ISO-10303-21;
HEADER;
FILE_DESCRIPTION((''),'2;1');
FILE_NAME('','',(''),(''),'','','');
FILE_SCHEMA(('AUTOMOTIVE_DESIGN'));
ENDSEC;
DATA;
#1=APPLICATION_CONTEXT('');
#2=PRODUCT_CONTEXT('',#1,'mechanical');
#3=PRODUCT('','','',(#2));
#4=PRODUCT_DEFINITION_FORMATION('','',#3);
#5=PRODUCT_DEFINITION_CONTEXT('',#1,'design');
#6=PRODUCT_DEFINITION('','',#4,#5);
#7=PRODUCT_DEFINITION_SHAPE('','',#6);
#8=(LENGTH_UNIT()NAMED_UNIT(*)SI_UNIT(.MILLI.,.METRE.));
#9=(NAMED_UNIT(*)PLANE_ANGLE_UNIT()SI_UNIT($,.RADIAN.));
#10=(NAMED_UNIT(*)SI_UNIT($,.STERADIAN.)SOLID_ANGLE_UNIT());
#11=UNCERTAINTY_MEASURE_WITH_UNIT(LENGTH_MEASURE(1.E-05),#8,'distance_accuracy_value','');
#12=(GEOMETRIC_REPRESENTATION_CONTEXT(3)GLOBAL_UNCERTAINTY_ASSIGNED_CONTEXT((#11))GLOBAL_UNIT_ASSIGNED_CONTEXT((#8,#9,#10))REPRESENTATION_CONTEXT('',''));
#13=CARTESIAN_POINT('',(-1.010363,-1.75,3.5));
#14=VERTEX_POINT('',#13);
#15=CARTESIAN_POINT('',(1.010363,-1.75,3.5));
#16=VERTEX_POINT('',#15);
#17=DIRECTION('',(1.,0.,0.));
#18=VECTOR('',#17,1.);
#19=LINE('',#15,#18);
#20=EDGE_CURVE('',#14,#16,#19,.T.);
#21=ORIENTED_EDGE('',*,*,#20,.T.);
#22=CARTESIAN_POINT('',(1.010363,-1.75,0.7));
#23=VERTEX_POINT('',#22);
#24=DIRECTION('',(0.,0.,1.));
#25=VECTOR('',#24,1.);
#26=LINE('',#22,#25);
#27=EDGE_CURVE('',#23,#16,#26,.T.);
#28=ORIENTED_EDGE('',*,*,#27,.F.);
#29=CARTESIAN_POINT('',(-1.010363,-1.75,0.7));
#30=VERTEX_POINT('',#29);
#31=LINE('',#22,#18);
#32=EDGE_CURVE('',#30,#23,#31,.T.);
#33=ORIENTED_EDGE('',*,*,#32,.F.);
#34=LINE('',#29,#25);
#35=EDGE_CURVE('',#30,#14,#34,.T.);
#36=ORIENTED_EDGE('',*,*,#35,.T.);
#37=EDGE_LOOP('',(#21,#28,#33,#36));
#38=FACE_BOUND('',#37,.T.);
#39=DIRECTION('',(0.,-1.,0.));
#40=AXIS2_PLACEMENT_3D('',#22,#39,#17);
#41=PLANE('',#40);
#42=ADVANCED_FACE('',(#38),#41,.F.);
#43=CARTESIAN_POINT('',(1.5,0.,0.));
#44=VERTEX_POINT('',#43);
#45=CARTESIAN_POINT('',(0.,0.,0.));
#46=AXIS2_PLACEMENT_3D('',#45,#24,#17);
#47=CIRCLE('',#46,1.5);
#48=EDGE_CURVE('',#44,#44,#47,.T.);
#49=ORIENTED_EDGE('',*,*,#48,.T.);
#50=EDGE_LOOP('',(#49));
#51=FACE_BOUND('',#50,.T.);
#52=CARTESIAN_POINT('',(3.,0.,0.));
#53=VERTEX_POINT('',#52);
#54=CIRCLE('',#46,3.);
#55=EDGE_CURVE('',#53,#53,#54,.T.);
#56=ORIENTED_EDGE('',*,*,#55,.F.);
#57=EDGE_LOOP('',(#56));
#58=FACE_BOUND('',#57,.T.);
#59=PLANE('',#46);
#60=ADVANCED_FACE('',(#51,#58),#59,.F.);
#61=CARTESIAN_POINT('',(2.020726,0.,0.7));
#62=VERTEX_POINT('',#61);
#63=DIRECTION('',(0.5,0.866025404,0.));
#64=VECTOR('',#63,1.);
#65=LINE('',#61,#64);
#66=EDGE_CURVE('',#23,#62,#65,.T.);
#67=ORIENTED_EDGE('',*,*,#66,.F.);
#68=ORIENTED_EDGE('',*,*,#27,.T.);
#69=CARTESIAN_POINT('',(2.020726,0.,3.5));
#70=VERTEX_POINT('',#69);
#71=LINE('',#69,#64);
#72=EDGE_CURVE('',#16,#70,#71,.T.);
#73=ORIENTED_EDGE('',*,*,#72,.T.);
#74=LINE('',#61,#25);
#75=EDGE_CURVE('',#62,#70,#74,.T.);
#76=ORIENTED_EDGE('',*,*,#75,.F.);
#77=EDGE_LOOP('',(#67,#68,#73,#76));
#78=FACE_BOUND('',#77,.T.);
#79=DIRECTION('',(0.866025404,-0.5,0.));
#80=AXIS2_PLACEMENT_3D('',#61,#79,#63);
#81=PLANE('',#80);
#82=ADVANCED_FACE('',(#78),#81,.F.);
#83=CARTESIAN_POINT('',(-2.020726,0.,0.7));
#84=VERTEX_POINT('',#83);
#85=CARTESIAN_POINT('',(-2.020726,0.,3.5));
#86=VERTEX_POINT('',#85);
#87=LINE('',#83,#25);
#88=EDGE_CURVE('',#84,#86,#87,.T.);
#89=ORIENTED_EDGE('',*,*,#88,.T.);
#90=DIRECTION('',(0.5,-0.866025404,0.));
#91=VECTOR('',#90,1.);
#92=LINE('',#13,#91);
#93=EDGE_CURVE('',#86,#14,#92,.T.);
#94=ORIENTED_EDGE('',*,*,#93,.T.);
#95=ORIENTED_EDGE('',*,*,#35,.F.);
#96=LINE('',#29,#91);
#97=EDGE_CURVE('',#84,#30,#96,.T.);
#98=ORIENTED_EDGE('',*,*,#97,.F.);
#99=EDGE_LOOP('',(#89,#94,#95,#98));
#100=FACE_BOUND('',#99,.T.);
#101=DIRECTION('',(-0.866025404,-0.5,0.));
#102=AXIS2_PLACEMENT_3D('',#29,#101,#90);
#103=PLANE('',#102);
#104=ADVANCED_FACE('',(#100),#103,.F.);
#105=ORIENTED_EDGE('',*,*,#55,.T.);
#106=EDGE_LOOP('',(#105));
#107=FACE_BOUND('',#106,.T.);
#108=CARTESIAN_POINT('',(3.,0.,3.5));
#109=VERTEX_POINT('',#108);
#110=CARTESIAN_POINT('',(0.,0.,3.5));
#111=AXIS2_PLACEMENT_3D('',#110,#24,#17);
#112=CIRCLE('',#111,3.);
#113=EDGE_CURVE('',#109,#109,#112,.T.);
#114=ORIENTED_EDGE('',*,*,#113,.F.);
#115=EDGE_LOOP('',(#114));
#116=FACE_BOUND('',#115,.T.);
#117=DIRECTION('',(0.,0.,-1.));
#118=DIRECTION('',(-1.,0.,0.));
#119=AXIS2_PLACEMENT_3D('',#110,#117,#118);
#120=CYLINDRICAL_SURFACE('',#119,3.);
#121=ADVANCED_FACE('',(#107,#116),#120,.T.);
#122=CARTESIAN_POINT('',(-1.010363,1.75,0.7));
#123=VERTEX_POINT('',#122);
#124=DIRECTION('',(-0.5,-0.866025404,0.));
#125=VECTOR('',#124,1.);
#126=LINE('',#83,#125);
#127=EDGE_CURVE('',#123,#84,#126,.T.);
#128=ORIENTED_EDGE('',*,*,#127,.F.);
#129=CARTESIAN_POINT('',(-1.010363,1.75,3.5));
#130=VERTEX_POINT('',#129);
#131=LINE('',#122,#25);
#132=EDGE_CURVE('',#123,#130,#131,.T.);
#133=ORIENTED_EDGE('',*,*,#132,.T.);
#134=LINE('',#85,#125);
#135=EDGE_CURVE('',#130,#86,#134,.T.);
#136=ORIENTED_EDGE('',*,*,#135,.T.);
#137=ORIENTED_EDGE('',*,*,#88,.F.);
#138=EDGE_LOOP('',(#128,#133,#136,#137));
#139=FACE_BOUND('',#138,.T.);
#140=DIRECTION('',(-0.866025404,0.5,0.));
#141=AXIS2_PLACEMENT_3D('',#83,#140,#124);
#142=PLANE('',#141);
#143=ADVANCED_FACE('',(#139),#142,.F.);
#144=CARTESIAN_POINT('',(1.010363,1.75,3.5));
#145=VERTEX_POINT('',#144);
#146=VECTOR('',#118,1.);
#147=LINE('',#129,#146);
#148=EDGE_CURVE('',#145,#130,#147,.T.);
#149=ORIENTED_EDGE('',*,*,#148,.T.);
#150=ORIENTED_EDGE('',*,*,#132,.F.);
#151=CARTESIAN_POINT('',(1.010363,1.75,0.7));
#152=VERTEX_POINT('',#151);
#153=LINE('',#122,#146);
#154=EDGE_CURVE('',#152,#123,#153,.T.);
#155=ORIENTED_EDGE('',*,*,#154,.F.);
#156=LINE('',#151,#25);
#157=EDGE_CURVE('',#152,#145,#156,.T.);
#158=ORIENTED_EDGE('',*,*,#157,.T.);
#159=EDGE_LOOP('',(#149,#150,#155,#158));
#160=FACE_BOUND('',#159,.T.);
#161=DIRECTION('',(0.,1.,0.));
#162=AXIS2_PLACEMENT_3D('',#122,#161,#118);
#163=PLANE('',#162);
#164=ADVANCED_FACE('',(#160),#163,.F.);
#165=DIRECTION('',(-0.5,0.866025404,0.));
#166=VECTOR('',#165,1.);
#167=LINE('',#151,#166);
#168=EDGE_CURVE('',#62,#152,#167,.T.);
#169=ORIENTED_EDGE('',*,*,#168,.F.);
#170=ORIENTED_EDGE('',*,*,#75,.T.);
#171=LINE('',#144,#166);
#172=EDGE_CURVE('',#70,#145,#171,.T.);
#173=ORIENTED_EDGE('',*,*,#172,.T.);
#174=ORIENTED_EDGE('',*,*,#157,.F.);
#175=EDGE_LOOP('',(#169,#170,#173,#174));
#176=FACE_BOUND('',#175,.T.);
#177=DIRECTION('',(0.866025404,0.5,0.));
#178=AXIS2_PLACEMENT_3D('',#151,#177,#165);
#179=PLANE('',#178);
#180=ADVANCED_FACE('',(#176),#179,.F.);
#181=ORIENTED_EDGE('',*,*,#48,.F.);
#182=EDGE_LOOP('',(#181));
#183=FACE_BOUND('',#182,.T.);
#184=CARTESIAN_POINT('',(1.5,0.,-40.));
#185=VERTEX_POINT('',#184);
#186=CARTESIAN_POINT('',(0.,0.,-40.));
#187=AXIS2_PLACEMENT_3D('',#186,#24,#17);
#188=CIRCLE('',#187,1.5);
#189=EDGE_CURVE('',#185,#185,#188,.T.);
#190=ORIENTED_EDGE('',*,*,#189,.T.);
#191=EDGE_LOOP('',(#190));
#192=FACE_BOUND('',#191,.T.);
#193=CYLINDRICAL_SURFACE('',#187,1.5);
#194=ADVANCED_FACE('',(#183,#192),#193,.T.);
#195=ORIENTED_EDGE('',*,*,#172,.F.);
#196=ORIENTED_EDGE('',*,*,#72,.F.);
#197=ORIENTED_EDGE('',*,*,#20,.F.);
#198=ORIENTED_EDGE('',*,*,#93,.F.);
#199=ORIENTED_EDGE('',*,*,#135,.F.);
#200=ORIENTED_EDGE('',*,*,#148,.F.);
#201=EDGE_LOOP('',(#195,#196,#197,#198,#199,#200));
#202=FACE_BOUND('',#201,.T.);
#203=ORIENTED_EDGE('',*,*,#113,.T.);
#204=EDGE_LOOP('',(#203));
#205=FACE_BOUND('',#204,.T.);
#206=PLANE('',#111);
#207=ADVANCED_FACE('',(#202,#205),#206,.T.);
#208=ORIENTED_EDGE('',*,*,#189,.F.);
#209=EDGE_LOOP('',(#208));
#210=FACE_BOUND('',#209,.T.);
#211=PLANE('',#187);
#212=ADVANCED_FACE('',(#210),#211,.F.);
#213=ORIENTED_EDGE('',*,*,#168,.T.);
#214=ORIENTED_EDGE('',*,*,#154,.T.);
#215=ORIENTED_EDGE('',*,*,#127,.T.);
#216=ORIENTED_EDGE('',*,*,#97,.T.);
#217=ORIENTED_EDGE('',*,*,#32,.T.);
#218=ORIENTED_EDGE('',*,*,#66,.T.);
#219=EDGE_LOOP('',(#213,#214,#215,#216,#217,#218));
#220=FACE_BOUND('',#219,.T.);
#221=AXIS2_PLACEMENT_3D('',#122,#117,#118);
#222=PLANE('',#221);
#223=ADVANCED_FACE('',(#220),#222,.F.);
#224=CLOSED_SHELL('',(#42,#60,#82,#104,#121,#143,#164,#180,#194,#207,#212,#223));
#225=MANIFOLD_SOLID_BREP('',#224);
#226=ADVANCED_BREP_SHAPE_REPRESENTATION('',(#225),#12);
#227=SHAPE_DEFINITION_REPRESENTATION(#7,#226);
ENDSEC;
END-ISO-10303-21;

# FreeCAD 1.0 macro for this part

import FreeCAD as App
import Part
import Sketcher
Q = App.Units.Quantity

doc = App.newDocument("Part")
body = doc.addObject("PartDesign::Body", "Body")

# Sketch on XY plane
sketch1 = body.newObject("Sketcher::SketchObject", "Sketch")
sketch1.AttachmentSupport = (doc.getObject("XY_Plane"), [""])
sketch1.MapMode = "FlatFace"
sketch1.addGeometry(Part.Circle(App.Vector(0, 0, 0), App.Vector(0, 0, 1), 3), False)
sketch1.addConstraint([
    Sketcher.Constraint("Coincident", 0, 3, -1, 1),
    Sketcher.Constraint("Diameter", 0, 6.0),
])
pad1 = body.newObject("PartDesign::Pad", "Pad")
pad1.Profile = sketch1
pad1.Length = 3.5

# Sketch on XY plane
sketch2 = body.newObject("Sketcher::SketchObject", "Sketch001")
sketch2.AttachmentSupport = (doc.getObject("XY_Plane"), [""])
sketch2.MapMode = "FlatFace"
sketch2.AttachmentOffset = App.Placement(App.Vector(0, 0, 3.5), App.Rotation())
sketch2.addGeometry([
    Part.LineSegment(App.Vector(1, 1.8, 0), App.Vector(-1, 1.8, 0)),  # 0
    Part.LineSegment(App.Vector(-1, 1.8, 0), App.Vector(-2, 0, 0)),  # 1
    Part.LineSegment(App.Vector(-2, 0, 0), App.Vector(-1, -1.8, 0)),  # 2
    Part.LineSegment(App.Vector(-1, -1.8, 0), App.Vector(1, -1.8, 0)),  # 3
    Part.LineSegment(App.Vector(1, -1.8, 0), App.Vector(2, 0, 0)),  # 4
    Part.LineSegment(App.Vector(2, 0, 0), App.Vector(1, 1.8, 0)),  # 5
], False)
sketch2.addConstraint([
    Sketcher.Constraint("Coincident", 0, 2, 1, 1),
    Sketcher.Constraint("Coincident", 1, 2, 2, 1),
    Sketcher.Constraint("Coincident", 2, 2, 3, 1),
    Sketcher.Constraint("Coincident", 3, 2, 4, 1),
    Sketcher.Constraint("Coincident", 4, 2, 5, 1),
    Sketcher.Constraint("Coincident", 5, 2, 0, 1),
    Sketcher.Constraint("Horizontal", 0),
    Sketcher.Constraint("Horizontal", 3),
    Sketcher.Constraint("Symmetric", 0, 2, 3, 2, -1, 1),
    Sketcher.Constraint("Symmetric", 1, 2, 4, 2, -1, 1),
    Sketcher.Constraint("PointOnObject", 1, 2, -1),
    Sketcher.Constraint("Parallel", 2, 5),
    Sketcher.Constraint("Vertical", 0, 2, 2, 2),
    Sketcher.Constraint("Angle", 1, Q("-120 deg")),
    Sketcher.Constraint("DistanceY", 2, 2, 0, 2, 3.5),
    Sketcher.Constraint("DistanceX", 0, 2, 0, 1, 2.020726),
])
pocket1 = body.newObject("PartDesign::Pocket", "Pocket")
pocket1.Profile = sketch2
pocket1.Length = 2.8

# Sketch on XY plane
sketch3 = body.newObject("Sketcher::SketchObject", "Sketch002")
sketch3.AttachmentSupport = (doc.getObject("XY_Plane"), [""])
sketch3.MapMode = "FlatFace"
sketch3.addGeometry(Part.Circle(App.Vector(0, 0, 0), App.Vector(0, 0, 1), 1.5), False)
sketch3.addConstraint([
    Sketcher.Constraint("Coincident", 0, 3, -1, 1),
    Sketcher.Constraint("Diameter", 0, 3.0),
])
pad2 = body.newObject("PartDesign::Pad", "Pad001")
pad2.Profile = sketch3
pad2.Length = 40
pad2.Reversed = True

doc.recompute()
